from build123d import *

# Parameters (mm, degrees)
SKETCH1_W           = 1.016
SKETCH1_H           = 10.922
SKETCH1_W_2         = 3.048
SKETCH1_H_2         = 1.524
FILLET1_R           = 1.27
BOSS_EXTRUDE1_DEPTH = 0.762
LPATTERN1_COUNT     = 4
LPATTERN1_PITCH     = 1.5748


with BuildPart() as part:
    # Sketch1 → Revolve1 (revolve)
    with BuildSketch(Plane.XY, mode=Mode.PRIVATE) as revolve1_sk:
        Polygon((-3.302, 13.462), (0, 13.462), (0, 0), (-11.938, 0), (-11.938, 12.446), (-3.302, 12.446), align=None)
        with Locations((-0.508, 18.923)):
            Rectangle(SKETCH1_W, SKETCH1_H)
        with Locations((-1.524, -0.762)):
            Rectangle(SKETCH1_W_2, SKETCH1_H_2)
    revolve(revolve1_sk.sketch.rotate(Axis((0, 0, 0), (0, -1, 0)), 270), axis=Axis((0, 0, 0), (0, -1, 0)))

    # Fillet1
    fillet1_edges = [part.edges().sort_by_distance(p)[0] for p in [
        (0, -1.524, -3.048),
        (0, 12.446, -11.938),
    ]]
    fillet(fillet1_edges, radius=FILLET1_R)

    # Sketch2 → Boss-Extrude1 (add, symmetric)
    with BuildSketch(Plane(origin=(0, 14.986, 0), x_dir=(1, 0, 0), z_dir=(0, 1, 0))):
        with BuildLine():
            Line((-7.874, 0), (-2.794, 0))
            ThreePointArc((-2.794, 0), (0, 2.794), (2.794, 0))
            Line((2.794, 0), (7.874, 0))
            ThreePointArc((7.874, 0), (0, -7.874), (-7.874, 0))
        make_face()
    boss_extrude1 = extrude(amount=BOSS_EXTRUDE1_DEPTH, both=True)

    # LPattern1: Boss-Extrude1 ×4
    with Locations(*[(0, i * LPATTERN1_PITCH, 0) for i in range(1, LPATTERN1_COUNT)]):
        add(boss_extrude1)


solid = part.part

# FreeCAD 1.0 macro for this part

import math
import FreeCAD as App
import Part
import Sketcher

V = App.Vector
Q = App.Units.Quantity


def edges_at(feature, points):
    """Names of the edges that pass closest to the given points."""
    edges = feature.Shape.Edges
    near = lambda p: min(range(len(edges)), key=lambda i: edges[i].distToShape(Part.Vertex(*p))[0])
    return sorted({f"Edge{near(p) + 1}" for p in points})

doc = App.newDocument("Part")
params = doc.addObject("Spreadsheet::Sheet", "Params")
for row, (alias, value) in enumerate([
    ("sketch1_width", "0.09 in"),
    ("sketch1_width2", "0.34 in"),
    ("sketch1_width3", "0.35 in"),
    ("sketch1_width4", "0.12 in"),
    ("sketch1_height", "0.49 in"),
    ("revolution_angle", "360 deg"),
    ("fillet_radius", "0.05 in"),
    ("sketch2_radius", "0.31 in"),
    ("sketch2_radius2", "0.11 in"),
    ("pad1_length", "0.06 in"),
    ("linearpattern_pitch", "0.062 in"),
], start=1):
    params.set(f"A{row}", alias)
    params.set(f"B{row}", "=" + value)
    params.setAlias(f"B{row}", alias)

body = doc.addObject("PartDesign::Body", "Body")

sketch1 = body.newObject("Sketcher::SketchObject", "Sketch")
sketch1.AttachmentSupport = (doc.getObject("XY_Plane"), [""])
sketch1.MapMode = "FlatFace"
sketch1.addGeometry(Part.LineSegment(V(-1, 13.5, 0), V(-3.3, 13.5, 0)), False)
sketch1.addGeometry(Part.LineSegment(V(-3.3, 13.5, 0), V(-3.3, 12.4, 0)), False)
sketch1.addGeometry(Part.LineSegment(V(-3.3, 12.4, 0), V(-11.9, 12.4, 0)), False)
sketch1.addGeometry(Part.LineSegment(V(-11.9, 12.4, 0), V(-11.9, 0, 0)), False)
sketch1.addGeometry(Part.LineSegment(V(-11.9, 0, 0), V(-3, 0, 0)), False)
sketch1.addGeometry(Part.LineSegment(V(-3, 0, 0), V(-3, -1.5, 0)), False)
sketch1.addGeometry(Part.LineSegment(V(-3, -1.5, 0), V(0, -1.5, 0)), False)
sketch1.addGeometry(Part.LineSegment(V(0, -1.5, 0), V(0, 24.4, 0)), False)
sketch1.addGeometry(Part.LineSegment(V(0, 24.4, 0), V(-1, 24.4, 0)), False)
sketch1.addGeometry(Part.LineSegment(V(-1, 24.4, 0), V(-1, 13.5, 0)), False)
sketch1.addConstraint(Sketcher.Constraint("Coincident", 0, 2, 1, 1))
sketch1.addConstraint(Sketcher.Constraint("Coincident", 1, 2, 2, 1))
sketch1.addConstraint(Sketcher.Constraint("Coincident", 2, 2, 3, 1))
sketch1.addConstraint(Sketcher.Constraint("Coincident", 3, 2, 4, 1))
sketch1.addConstraint(Sketcher.Constraint("Coincident", 4, 2, 5, 1))
sketch1.addConstraint(Sketcher.Constraint("Coincident", 5, 2, 6, 1))
sketch1.addConstraint(Sketcher.Constraint("Coincident", 6, 2, 7, 1))
sketch1.addConstraint(Sketcher.Constraint("Coincident", 7, 2, 8, 1))
sketch1.addConstraint(Sketcher.Constraint("Coincident", 8, 2, 9, 1))
sketch1.addConstraint(Sketcher.Constraint("Coincident", 9, 2, 0, 1))
sketch1.addConstraint(Sketcher.Constraint("Horizontal", 0))
sketch1.addConstraint(Sketcher.Constraint("Vertical", 1))
sketch1.addConstraint(Sketcher.Constraint("Horizontal", 2))
sketch1.addConstraint(Sketcher.Constraint("Vertical", 3))
sketch1.addConstraint(Sketcher.Constraint("Horizontal", 4))
sketch1.addConstraint(Sketcher.Constraint("Vertical", 5))
sketch1.addConstraint(Sketcher.Constraint("Horizontal", 6))
sketch1.addConstraint(Sketcher.Constraint("Vertical", 7))
sketch1.addConstraint(Sketcher.Constraint("Horizontal", 8))
sketch1.addConstraint(Sketcher.Constraint("Vertical", 9))
sketch1.addConstraint(Sketcher.Constraint("PointOnObject", 3, 2, -1))
sketch1.addConstraint(Sketcher.Constraint("PointOnObject", 6, 2, -2))
sketch1.addConstraint(Sketcher.Constraint("Equal", 8, 1))
sketch1.addConstraint(Sketcher.Constraint("DistanceX", 0, 2, 0, 1, Q("0.09 in")))
sketch1.addConstraint(Sketcher.Constraint("DistanceX", 2, 2, 2, 1, Q("0.34 in")))
sketch1.addConstraint(Sketcher.Constraint("DistanceX", 4, 1, 4, 2, Q("0.35 in")))
sketch1.addConstraint(Sketcher.Constraint("DistanceX", 6, 1, 6, 2, Q("0.12 in")))
sketch1.addConstraint(Sketcher.Constraint("DistanceY", 3, 2, 3, 1, Q("0.49 in")))
sketch1.addConstraint(Sketcher.Constraint("DistanceY", 5, 2, 5, 1, Q("0.06 in")))
sketch1.addConstraint(Sketcher.Constraint("DistanceY", 7, 1, 7, 2, Q("1.02 in")))
sketch1.setExpression("Constraints[23]", "Params.sketch1_width")
sketch1.setExpression("Constraints[24]", "Params.sketch1_width2")
sketch1.setExpression("Constraints[25]", "Params.sketch1_width3")
sketch1.setExpression("Constraints[26]", "Params.sketch1_width4")
sketch1.setExpression("Constraints[27]", "Params.sketch1_height")
revolution = body.newObject("PartDesign::Revolution", "Revolution")
revolution.Profile = sketch1
revolution.ReferenceAxis = (sketch1, ["V_Axis"])
revolution.setExpression("Angle", "Params.revolution_angle")
doc.recompute()

fillet = body.newObject("PartDesign::Fillet", "Fillet")
fillet.Base = (revolution, edges_at(revolution, [(0, -1.524, -3.048), (0, 12.446, -11.938)]))
fillet.setExpression("Radius", "Params.fillet_radius")

sketch2 = body.newObject("Sketcher::SketchObject", "Sketch001")
sketch2.AttachmentSupport = (doc.getObject("XZ_Plane"), [""])
sketch2.MapMode = "FlatFace"
sketch2.AttachmentOffset = App.Placement(V(0, 0, -0.59 * 25.4), App.Rotation())
sketch2.addGeometry(Part.LineSegment(V(-2.8, 0, 0), V(-7.9, 0, 0)), False)
sketch2.addGeometry(Part.ArcOfCircle(Part.Circle(V(0, 0, 0), V(0, 0, 1), 7.9), math.radians(0), math.radians(180)), False)
sketch2.addGeometry(Part.LineSegment(V(7.9, 0, 0), V(2.8, 0, 0)), False)
sketch2.addGeometry(Part.ArcOfCircle(Part.Circle(V(0, 0, 0), V(0, 0, 1), 2.8), math.radians(180), math.radians(360)), False)
sketch2.addConstraint(Sketcher.Constraint("Coincident", 0, 2, 1, 2))
sketch2.addConstraint(Sketcher.Constraint("Coincident", 1, 1, 2, 1))
sketch2.addConstraint(Sketcher.Constraint("Coincident", 2, 2, 3, 2))
sketch2.addConstraint(Sketcher.Constraint("Coincident", 3, 1, 0, 1))
sketch2.addConstraint(Sketcher.Constraint("Horizontal", 0))
sketch2.addConstraint(Sketcher.Constraint("Horizontal", 2))
sketch2.addConstraint(Sketcher.Constraint("Coincident", 1, 3, -1, 1))
sketch2.addConstraint(Sketcher.Constraint("Coincident", 3, 3, -1, 1))
sketch2.addConstraint(Sketcher.Constraint("PointOnObject", 0, 2, -1))
sketch2.addConstraint(Sketcher.Constraint("PointOnObject", 1, 1, -1))
sketch2.addConstraint(Sketcher.Constraint("Radius", 1, Q("0.31 in")))
sketch2.addConstraint(Sketcher.Constraint("Radius", 3, Q("0.11 in")))
sketch2.setExpression("Constraints[10]", "Params.sketch2_radius")
sketch2.setExpression("Constraints[11]", "Params.sketch2_radius2")
pad1 = body.newObject("PartDesign::Pad", "Pad")
pad1.Profile = sketch2
pad1.setExpression("Length", "Params.pad1_length")
pad1.Midplane = True
doc.recompute()

linearpattern = body.newObject("PartDesign::LinearPattern", "LinearPattern")
linearpattern.Originals = [pad1]
linearpattern.Direction = (doc.getObject("Y_Axis"), [""])
linearpattern.Mode = "offset"
linearpattern.setExpression("Offset", "Params.linearpattern_pitch")
linearpattern.Occurrences = 4
body.Tip = linearpattern

doc.recompute()
